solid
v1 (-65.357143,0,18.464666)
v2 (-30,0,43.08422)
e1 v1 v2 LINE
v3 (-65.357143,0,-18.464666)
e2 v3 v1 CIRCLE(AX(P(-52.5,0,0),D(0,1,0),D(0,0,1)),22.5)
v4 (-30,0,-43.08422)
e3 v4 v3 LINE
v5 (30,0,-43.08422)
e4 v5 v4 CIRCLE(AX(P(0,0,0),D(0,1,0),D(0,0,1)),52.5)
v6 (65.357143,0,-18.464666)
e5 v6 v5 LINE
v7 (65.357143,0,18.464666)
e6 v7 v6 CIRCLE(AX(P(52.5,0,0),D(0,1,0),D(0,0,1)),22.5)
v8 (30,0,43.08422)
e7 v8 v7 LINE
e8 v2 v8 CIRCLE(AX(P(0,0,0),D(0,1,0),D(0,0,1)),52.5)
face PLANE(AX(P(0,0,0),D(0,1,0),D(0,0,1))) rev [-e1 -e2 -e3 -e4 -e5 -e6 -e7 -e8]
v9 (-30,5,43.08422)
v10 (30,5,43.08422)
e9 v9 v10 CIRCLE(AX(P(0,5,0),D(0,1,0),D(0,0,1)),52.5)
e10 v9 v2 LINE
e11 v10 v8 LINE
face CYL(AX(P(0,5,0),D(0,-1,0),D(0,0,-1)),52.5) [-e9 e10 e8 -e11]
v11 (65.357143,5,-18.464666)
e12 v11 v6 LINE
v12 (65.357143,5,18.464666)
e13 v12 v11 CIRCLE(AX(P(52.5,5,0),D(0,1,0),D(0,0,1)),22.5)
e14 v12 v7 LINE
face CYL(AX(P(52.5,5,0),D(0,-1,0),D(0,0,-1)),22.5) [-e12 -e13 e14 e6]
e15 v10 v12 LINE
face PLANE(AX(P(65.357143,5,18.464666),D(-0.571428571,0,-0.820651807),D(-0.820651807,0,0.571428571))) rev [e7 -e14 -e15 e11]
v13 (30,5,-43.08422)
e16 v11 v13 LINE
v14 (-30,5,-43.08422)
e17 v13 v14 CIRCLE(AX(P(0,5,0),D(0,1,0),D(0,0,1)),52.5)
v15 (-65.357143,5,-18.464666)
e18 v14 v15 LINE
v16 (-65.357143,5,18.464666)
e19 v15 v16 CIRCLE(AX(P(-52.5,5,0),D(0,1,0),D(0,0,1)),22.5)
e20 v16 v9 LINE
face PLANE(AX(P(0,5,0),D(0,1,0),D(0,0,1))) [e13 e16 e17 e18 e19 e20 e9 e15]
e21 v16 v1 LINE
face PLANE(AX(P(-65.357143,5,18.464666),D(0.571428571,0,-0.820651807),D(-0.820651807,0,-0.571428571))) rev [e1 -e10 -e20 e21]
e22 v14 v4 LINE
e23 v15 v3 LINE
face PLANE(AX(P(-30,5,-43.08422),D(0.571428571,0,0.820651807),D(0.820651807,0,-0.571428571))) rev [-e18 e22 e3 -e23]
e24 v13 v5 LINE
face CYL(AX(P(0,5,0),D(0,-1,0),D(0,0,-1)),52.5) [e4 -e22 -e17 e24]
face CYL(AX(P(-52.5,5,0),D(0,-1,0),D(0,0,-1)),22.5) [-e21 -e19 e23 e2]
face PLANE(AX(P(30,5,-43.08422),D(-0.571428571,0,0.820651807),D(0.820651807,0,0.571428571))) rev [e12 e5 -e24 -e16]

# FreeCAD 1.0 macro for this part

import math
import FreeCAD as App
import Part
import Sketcher
Q = App.Units.Quantity

doc = App.newDocument("Part")
body = doc.addObject("PartDesign::Body", "Body")

# Sketch on XZ plane
sketch1 = doc.addObject("Sketcher::SketchObject", "Sketch")
body.addObject(sketch1)
sketch1.AttachmentSupport = (doc.XZ_Plane, [""])
sketch1.MapMode = "FlatFace"
sketch1.addGeometry(Part.LineSegment(App.Vector(-30, -43.08422, 0), App.Vector(-65.357143, -18.464666, 0)), False)
sketch1.addGeometry(Part.ArcOfCircle(Part.Circle(App.Vector(-52.5, 0, 0), App.Vector(0, 0, 1), 22.5), math.radians(124.849905), math.radians(235.150095)), False)
sketch1.addGeometry(Part.LineSegment(App.Vector(-65.357143, 18.464666, 0), App.Vector(-30, 43.08422, 0)), False)
sketch1.addGeometry(Part.ArcOfCircle(Part.Circle(App.Vector(0, 0, 0), App.Vector(0, 0, 1), 52.5), math.radians(55.150095), math.radians(124.849905)), False)
sketch1.addGeometry(Part.LineSegment(App.Vector(30, 43.08422, 0), App.Vector(65.357143, 18.464666, 0)), False)
sketch1.addGeometry(Part.ArcOfCircle(Part.Circle(App.Vector(52.5, 0, 0), App.Vector(0, 0, 1), 22.5), math.radians(-55.150095), math.radians(55.150095)), False)
sketch1.addGeometry(Part.LineSegment(App.Vector(65.357143, -18.464666, 0), App.Vector(30, -43.08422, 0)), False)
sketch1.addGeometry(Part.ArcOfCircle(Part.Circle(App.Vector(0, 0, 0), App.Vector(0, 0, 1), 52.5), math.radians(-124.849905), math.radians(-55.150095)), False)
sketch1.addConstraint(Sketcher.Constraint("Tangent", 0, 2, 1, 2))
sketch1.addConstraint(Sketcher.Constraint("Tangent", 1, 1, 2, 1))
sketch1.addConstraint(Sketcher.Constraint("Tangent", 2, 2, 3, 2))
sketch1.addConstraint(Sketcher.Constraint("Tangent", 3, 1, 4, 1))
sketch1.addConstraint(Sketcher.Constraint("Tangent", 4, 2, 5, 2))
sketch1.addConstraint(Sketcher.Constraint("Tangent", 5, 1, 6, 1))
sketch1.addConstraint(Sketcher.Constraint("Tangent", 6, 2, 7, 2))
sketch1.addConstraint(Sketcher.Constraint("Tangent", 7, 1, 0, 1))
sketch1.addConstraint(Sketcher.Constraint("Coincident", 3, 3, -1, 1))
sketch1.addConstraint(Sketcher.Constraint("Coincident", 7, 3, -1, 1))
sketch1.addConstraint(Sketcher.Constraint("Equal", 1, 5))
sketch1.addConstraint(Sketcher.Constraint("Equal", 3, 7))
sketch1.addConstraint(Sketcher.Constraint("Symmetric", 1, 3, 5, 3, -1, 1))
sketch1.addConstraint(Sketcher.Constraint("PointOnObject", 1, 3, -1))
sketch1.addConstraint(Sketcher.Constraint("Radius", 1, Q("22.5 mm")))
sketch1.addConstraint(Sketcher.Constraint("Radius", 3, Q("52.5 mm")))
sketch1.addConstraint(Sketcher.Constraint("DistanceX", 2, 2, -1, 1, Q("30 mm")))
pad1 = doc.addObject("PartDesign::Pad", "Pad")
body.addObject(pad1)
pad1.Profile = sketch1
pad1.Length = 5
pad1.Reversed = True

doc.recompute()
